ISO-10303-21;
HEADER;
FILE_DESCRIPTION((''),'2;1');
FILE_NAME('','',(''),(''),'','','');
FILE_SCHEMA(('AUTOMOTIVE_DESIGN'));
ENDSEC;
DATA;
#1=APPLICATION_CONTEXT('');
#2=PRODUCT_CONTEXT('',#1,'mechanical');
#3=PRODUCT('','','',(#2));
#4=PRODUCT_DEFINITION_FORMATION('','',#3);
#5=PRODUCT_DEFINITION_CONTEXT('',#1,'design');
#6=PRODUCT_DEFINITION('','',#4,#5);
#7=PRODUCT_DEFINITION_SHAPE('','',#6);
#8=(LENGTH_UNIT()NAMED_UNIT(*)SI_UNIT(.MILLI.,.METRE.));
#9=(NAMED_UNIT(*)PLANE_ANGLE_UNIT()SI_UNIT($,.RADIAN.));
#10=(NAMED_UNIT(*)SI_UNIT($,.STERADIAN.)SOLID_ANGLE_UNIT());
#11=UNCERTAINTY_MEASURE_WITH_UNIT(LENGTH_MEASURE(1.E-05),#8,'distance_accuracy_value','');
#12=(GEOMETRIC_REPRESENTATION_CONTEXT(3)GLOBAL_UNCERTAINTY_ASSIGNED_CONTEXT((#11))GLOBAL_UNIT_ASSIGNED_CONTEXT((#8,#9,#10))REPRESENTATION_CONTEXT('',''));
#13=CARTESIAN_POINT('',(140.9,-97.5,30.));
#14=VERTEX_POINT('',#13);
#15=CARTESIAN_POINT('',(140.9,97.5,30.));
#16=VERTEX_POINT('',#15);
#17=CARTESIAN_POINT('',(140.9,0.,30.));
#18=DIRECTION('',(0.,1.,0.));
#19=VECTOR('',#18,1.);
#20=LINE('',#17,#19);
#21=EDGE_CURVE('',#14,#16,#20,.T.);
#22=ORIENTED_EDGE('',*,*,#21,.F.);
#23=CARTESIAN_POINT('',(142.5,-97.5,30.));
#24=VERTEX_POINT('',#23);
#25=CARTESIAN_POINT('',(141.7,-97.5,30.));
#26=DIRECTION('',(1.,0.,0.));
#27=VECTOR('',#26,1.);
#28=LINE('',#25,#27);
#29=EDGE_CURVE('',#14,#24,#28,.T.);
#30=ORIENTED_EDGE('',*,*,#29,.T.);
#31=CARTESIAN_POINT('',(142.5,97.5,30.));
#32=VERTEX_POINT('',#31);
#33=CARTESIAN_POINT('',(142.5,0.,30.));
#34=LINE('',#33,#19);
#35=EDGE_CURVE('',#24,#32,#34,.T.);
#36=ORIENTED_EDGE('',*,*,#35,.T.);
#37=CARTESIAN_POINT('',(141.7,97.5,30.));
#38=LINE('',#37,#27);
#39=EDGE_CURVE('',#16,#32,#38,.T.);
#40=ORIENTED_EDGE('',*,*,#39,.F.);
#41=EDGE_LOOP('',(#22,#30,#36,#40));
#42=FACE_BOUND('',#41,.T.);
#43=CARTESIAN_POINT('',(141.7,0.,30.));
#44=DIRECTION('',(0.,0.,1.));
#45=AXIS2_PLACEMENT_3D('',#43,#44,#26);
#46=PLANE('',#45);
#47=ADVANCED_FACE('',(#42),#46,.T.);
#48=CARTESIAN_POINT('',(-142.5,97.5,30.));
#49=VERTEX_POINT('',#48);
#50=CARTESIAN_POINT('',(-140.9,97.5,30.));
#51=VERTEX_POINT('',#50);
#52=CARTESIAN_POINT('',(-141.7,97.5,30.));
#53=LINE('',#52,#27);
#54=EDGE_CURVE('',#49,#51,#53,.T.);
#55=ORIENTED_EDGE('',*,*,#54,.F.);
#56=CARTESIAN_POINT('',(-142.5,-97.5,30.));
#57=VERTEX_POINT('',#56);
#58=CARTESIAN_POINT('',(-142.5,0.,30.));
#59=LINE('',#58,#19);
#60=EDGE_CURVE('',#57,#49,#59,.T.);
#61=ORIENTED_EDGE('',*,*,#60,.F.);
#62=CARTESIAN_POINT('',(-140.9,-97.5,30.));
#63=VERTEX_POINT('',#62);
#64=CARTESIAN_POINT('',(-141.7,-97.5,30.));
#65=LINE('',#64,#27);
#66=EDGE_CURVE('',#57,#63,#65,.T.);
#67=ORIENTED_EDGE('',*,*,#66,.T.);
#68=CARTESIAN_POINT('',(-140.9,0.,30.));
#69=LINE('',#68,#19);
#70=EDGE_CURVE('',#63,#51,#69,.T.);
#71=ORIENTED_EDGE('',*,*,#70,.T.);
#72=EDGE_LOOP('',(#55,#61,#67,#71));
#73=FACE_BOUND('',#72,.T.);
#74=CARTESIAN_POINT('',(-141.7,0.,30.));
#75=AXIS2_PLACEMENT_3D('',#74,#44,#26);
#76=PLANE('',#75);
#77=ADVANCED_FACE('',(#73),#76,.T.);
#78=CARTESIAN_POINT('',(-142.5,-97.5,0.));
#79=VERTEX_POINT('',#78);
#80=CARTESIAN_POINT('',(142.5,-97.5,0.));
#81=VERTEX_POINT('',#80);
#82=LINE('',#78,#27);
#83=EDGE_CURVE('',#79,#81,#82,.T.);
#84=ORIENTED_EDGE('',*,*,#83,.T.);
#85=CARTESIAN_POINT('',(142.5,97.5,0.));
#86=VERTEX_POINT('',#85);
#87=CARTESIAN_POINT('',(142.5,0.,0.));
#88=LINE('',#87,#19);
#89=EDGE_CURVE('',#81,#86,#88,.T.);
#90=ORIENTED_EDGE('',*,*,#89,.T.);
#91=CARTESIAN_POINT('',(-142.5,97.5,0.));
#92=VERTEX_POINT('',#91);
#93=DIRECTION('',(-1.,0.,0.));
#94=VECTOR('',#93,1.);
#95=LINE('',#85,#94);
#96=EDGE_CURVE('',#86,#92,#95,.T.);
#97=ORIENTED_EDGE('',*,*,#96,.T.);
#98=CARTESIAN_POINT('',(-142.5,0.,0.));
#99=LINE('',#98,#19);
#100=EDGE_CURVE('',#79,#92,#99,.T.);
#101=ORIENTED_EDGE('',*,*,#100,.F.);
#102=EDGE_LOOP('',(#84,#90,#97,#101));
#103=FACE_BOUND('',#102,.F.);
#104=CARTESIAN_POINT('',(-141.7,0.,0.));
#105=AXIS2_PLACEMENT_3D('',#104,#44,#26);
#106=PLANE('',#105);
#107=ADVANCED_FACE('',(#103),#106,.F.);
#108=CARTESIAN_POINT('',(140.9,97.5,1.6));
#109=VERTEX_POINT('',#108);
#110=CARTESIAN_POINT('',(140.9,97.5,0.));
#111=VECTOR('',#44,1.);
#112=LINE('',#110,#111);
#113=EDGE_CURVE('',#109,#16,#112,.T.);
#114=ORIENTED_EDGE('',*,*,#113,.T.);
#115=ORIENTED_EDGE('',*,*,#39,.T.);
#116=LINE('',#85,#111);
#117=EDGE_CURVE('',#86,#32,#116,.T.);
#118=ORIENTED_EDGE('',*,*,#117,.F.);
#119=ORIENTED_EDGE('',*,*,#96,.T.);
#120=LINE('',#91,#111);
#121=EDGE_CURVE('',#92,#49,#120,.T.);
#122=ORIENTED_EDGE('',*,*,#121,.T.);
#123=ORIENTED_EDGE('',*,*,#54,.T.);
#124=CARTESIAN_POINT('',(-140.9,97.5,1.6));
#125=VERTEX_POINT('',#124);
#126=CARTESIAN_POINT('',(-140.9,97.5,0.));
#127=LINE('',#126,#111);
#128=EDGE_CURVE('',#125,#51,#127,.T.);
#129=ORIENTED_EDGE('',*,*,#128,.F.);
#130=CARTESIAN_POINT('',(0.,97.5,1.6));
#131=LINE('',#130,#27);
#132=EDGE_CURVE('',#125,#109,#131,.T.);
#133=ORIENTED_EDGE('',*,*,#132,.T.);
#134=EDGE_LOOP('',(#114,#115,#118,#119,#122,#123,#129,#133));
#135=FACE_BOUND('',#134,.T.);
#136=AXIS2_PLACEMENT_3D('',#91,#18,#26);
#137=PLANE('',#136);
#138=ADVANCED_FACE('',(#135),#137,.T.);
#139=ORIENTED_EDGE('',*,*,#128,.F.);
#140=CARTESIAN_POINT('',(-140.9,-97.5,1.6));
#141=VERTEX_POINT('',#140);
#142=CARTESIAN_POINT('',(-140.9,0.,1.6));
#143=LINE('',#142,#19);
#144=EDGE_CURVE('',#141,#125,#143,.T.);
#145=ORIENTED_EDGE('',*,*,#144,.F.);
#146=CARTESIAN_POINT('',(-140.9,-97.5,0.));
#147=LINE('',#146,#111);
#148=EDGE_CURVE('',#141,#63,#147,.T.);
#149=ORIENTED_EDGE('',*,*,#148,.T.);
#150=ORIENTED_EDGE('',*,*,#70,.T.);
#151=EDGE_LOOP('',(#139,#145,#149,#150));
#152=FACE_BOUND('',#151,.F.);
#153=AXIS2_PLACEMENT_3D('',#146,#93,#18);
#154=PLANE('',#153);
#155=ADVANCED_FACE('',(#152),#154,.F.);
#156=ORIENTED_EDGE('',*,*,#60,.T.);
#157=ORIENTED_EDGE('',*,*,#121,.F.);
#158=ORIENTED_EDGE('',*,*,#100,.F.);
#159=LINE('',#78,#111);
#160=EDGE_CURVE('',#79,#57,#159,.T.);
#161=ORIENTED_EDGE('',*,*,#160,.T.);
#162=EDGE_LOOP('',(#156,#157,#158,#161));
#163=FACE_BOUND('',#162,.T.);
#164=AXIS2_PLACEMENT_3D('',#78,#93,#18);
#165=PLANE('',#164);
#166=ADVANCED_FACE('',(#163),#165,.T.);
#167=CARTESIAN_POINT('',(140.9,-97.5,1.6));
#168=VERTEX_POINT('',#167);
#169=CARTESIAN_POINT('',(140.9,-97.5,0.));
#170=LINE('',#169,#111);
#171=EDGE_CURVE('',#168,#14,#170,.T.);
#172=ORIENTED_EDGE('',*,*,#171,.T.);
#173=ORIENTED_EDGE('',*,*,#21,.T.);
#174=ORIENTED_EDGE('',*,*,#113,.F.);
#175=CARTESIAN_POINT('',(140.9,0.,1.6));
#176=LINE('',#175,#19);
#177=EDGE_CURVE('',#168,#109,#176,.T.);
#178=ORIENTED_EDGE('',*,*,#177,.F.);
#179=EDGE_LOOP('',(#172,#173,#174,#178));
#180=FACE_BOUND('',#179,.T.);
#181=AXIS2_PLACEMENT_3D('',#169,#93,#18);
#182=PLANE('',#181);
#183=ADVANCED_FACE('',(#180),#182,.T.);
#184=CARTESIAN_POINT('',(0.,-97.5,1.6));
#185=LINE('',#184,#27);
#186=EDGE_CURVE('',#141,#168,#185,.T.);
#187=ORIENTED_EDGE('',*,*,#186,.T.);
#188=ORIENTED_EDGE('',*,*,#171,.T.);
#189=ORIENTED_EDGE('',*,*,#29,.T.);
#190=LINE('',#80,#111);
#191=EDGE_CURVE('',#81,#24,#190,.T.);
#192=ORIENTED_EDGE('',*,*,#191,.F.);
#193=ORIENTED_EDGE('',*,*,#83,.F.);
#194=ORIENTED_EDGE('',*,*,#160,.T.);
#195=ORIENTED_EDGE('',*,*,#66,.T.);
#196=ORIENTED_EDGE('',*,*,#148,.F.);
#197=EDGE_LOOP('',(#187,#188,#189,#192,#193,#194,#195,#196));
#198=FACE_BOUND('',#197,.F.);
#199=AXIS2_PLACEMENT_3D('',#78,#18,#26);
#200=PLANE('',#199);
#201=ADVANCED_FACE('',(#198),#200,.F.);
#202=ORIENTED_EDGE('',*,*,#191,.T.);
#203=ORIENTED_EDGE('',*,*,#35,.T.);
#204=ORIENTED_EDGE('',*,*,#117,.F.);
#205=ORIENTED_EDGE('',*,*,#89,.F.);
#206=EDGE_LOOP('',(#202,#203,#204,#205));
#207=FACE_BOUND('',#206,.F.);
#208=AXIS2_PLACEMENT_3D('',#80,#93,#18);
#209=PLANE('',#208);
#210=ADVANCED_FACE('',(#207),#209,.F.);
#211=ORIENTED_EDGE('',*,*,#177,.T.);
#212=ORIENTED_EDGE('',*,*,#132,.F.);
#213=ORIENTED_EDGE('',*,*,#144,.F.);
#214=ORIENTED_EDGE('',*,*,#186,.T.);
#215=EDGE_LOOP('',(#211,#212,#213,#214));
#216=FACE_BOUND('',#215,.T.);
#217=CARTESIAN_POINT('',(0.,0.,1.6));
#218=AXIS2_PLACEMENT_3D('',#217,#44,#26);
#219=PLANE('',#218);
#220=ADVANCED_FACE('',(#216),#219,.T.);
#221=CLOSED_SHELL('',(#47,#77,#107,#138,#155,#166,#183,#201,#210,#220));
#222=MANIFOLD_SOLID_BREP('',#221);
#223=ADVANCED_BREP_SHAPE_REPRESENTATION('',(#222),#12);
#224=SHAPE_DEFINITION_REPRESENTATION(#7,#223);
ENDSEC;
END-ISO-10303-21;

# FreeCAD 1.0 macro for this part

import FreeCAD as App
import Part
import Sketcher
Q = App.Units.Quantity


def add_polygon(sketch, points):
    """Adds a closed chain of lines whose ends are joined by coincident constraints."""
    first, n = sketch.GeometryCount, len(points)
    for a, b in zip(points, points[1:] + points[:1]):
        sketch.addGeometry(Part.LineSegment(App.Vector(*a, 0), App.Vector(*b, 0)), False)
    for i in range(n):
        sketch.addConstraint(Sketcher.Constraint("Coincident", first + i, 2, first + (i + 1) % n, 1))

doc = App.newDocument("Part")
body = doc.addObject("PartDesign::Body", "Body")

sketch1 = body.newObject("Sketcher::SketchObject", "Sketch")
sketch1.AttachmentSupport = (doc.getObject("XY_Plane"), [""])
sketch1.MapMode = "FlatFace"
add_polygon(sketch1, [(-141, 98), (-141, -98), (141, -98), (141, 98)])
sketch1.addConstraint([
    Sketcher.Constraint("Vertical", 0),
    Sketcher.Constraint("Horizontal", 1),
    Sketcher.Constraint("Vertical", 2),
    Sketcher.Constraint("Horizontal", 3),
    Sketcher.Constraint("Symmetric", 0, 2, 2, 2, -1, 1),
    Sketcher.Constraint("DistanceY", 0, 2, 0, 1, Q("195 mm")),
    Sketcher.Constraint("DistanceX", 1, 1, 1, 2, Q("281.8 mm")),
])
pad1 = body.newObject("PartDesign::Pad", "Pad")
pad1.Profile = sketch1
pad1.Length = 1.6

sketch2 = body.newObject("Sketcher::SketchObject", "Sketch001")
sketch2.AttachmentSupport = (doc.getObject("XY_Plane"), [""])
sketch2.MapMode = "FlatFace"
add_polygon(sketch2, [(-142.5, 97.5), (-142.5, -97.5), (-140.9, -97.5), (-140.9, 97.5)])
add_polygon(sketch2, [(140.9, 97.5), (140.9, -97.5), (142.5, -97.5), (142.5, 97.5)])
sketch2.addConstraint([
    Sketcher.Constraint("Vertical", 0),
    Sketcher.Constraint("Horizontal", 1),
    Sketcher.Constraint("Vertical", 2),
    Sketcher.Constraint("Horizontal", 3),
    Sketcher.Constraint("Vertical", 4),
    Sketcher.Constraint("Horizontal", 5),
    Sketcher.Constraint("Vertical", 6),
    Sketcher.Constraint("Horizontal", 7),
    Sketcher.Constraint("Symmetric", 2, 2, 4, 2, -1, 1),
    Sketcher.Constraint("Symmetric", 0, 2, 6, 2, -1, 1),
    Sketcher.Constraint("Horizontal", 1, 2, 4, 2),
    Sketcher.Constraint("DistanceY", 0, 2, 0, 1, Q("195 mm")),
    Sketcher.Constraint("DistanceX", 1, 1, 1, 2, Q("1.6 mm")),
    Sketcher.Constraint("DistanceX", 0, 2, 5, 2, Q("285 mm")),
])
pad2 = body.newObject("PartDesign::Pad", "Pad001")
pad2.Profile = sketch2
pad2.Length = 30

doc.recompute()
